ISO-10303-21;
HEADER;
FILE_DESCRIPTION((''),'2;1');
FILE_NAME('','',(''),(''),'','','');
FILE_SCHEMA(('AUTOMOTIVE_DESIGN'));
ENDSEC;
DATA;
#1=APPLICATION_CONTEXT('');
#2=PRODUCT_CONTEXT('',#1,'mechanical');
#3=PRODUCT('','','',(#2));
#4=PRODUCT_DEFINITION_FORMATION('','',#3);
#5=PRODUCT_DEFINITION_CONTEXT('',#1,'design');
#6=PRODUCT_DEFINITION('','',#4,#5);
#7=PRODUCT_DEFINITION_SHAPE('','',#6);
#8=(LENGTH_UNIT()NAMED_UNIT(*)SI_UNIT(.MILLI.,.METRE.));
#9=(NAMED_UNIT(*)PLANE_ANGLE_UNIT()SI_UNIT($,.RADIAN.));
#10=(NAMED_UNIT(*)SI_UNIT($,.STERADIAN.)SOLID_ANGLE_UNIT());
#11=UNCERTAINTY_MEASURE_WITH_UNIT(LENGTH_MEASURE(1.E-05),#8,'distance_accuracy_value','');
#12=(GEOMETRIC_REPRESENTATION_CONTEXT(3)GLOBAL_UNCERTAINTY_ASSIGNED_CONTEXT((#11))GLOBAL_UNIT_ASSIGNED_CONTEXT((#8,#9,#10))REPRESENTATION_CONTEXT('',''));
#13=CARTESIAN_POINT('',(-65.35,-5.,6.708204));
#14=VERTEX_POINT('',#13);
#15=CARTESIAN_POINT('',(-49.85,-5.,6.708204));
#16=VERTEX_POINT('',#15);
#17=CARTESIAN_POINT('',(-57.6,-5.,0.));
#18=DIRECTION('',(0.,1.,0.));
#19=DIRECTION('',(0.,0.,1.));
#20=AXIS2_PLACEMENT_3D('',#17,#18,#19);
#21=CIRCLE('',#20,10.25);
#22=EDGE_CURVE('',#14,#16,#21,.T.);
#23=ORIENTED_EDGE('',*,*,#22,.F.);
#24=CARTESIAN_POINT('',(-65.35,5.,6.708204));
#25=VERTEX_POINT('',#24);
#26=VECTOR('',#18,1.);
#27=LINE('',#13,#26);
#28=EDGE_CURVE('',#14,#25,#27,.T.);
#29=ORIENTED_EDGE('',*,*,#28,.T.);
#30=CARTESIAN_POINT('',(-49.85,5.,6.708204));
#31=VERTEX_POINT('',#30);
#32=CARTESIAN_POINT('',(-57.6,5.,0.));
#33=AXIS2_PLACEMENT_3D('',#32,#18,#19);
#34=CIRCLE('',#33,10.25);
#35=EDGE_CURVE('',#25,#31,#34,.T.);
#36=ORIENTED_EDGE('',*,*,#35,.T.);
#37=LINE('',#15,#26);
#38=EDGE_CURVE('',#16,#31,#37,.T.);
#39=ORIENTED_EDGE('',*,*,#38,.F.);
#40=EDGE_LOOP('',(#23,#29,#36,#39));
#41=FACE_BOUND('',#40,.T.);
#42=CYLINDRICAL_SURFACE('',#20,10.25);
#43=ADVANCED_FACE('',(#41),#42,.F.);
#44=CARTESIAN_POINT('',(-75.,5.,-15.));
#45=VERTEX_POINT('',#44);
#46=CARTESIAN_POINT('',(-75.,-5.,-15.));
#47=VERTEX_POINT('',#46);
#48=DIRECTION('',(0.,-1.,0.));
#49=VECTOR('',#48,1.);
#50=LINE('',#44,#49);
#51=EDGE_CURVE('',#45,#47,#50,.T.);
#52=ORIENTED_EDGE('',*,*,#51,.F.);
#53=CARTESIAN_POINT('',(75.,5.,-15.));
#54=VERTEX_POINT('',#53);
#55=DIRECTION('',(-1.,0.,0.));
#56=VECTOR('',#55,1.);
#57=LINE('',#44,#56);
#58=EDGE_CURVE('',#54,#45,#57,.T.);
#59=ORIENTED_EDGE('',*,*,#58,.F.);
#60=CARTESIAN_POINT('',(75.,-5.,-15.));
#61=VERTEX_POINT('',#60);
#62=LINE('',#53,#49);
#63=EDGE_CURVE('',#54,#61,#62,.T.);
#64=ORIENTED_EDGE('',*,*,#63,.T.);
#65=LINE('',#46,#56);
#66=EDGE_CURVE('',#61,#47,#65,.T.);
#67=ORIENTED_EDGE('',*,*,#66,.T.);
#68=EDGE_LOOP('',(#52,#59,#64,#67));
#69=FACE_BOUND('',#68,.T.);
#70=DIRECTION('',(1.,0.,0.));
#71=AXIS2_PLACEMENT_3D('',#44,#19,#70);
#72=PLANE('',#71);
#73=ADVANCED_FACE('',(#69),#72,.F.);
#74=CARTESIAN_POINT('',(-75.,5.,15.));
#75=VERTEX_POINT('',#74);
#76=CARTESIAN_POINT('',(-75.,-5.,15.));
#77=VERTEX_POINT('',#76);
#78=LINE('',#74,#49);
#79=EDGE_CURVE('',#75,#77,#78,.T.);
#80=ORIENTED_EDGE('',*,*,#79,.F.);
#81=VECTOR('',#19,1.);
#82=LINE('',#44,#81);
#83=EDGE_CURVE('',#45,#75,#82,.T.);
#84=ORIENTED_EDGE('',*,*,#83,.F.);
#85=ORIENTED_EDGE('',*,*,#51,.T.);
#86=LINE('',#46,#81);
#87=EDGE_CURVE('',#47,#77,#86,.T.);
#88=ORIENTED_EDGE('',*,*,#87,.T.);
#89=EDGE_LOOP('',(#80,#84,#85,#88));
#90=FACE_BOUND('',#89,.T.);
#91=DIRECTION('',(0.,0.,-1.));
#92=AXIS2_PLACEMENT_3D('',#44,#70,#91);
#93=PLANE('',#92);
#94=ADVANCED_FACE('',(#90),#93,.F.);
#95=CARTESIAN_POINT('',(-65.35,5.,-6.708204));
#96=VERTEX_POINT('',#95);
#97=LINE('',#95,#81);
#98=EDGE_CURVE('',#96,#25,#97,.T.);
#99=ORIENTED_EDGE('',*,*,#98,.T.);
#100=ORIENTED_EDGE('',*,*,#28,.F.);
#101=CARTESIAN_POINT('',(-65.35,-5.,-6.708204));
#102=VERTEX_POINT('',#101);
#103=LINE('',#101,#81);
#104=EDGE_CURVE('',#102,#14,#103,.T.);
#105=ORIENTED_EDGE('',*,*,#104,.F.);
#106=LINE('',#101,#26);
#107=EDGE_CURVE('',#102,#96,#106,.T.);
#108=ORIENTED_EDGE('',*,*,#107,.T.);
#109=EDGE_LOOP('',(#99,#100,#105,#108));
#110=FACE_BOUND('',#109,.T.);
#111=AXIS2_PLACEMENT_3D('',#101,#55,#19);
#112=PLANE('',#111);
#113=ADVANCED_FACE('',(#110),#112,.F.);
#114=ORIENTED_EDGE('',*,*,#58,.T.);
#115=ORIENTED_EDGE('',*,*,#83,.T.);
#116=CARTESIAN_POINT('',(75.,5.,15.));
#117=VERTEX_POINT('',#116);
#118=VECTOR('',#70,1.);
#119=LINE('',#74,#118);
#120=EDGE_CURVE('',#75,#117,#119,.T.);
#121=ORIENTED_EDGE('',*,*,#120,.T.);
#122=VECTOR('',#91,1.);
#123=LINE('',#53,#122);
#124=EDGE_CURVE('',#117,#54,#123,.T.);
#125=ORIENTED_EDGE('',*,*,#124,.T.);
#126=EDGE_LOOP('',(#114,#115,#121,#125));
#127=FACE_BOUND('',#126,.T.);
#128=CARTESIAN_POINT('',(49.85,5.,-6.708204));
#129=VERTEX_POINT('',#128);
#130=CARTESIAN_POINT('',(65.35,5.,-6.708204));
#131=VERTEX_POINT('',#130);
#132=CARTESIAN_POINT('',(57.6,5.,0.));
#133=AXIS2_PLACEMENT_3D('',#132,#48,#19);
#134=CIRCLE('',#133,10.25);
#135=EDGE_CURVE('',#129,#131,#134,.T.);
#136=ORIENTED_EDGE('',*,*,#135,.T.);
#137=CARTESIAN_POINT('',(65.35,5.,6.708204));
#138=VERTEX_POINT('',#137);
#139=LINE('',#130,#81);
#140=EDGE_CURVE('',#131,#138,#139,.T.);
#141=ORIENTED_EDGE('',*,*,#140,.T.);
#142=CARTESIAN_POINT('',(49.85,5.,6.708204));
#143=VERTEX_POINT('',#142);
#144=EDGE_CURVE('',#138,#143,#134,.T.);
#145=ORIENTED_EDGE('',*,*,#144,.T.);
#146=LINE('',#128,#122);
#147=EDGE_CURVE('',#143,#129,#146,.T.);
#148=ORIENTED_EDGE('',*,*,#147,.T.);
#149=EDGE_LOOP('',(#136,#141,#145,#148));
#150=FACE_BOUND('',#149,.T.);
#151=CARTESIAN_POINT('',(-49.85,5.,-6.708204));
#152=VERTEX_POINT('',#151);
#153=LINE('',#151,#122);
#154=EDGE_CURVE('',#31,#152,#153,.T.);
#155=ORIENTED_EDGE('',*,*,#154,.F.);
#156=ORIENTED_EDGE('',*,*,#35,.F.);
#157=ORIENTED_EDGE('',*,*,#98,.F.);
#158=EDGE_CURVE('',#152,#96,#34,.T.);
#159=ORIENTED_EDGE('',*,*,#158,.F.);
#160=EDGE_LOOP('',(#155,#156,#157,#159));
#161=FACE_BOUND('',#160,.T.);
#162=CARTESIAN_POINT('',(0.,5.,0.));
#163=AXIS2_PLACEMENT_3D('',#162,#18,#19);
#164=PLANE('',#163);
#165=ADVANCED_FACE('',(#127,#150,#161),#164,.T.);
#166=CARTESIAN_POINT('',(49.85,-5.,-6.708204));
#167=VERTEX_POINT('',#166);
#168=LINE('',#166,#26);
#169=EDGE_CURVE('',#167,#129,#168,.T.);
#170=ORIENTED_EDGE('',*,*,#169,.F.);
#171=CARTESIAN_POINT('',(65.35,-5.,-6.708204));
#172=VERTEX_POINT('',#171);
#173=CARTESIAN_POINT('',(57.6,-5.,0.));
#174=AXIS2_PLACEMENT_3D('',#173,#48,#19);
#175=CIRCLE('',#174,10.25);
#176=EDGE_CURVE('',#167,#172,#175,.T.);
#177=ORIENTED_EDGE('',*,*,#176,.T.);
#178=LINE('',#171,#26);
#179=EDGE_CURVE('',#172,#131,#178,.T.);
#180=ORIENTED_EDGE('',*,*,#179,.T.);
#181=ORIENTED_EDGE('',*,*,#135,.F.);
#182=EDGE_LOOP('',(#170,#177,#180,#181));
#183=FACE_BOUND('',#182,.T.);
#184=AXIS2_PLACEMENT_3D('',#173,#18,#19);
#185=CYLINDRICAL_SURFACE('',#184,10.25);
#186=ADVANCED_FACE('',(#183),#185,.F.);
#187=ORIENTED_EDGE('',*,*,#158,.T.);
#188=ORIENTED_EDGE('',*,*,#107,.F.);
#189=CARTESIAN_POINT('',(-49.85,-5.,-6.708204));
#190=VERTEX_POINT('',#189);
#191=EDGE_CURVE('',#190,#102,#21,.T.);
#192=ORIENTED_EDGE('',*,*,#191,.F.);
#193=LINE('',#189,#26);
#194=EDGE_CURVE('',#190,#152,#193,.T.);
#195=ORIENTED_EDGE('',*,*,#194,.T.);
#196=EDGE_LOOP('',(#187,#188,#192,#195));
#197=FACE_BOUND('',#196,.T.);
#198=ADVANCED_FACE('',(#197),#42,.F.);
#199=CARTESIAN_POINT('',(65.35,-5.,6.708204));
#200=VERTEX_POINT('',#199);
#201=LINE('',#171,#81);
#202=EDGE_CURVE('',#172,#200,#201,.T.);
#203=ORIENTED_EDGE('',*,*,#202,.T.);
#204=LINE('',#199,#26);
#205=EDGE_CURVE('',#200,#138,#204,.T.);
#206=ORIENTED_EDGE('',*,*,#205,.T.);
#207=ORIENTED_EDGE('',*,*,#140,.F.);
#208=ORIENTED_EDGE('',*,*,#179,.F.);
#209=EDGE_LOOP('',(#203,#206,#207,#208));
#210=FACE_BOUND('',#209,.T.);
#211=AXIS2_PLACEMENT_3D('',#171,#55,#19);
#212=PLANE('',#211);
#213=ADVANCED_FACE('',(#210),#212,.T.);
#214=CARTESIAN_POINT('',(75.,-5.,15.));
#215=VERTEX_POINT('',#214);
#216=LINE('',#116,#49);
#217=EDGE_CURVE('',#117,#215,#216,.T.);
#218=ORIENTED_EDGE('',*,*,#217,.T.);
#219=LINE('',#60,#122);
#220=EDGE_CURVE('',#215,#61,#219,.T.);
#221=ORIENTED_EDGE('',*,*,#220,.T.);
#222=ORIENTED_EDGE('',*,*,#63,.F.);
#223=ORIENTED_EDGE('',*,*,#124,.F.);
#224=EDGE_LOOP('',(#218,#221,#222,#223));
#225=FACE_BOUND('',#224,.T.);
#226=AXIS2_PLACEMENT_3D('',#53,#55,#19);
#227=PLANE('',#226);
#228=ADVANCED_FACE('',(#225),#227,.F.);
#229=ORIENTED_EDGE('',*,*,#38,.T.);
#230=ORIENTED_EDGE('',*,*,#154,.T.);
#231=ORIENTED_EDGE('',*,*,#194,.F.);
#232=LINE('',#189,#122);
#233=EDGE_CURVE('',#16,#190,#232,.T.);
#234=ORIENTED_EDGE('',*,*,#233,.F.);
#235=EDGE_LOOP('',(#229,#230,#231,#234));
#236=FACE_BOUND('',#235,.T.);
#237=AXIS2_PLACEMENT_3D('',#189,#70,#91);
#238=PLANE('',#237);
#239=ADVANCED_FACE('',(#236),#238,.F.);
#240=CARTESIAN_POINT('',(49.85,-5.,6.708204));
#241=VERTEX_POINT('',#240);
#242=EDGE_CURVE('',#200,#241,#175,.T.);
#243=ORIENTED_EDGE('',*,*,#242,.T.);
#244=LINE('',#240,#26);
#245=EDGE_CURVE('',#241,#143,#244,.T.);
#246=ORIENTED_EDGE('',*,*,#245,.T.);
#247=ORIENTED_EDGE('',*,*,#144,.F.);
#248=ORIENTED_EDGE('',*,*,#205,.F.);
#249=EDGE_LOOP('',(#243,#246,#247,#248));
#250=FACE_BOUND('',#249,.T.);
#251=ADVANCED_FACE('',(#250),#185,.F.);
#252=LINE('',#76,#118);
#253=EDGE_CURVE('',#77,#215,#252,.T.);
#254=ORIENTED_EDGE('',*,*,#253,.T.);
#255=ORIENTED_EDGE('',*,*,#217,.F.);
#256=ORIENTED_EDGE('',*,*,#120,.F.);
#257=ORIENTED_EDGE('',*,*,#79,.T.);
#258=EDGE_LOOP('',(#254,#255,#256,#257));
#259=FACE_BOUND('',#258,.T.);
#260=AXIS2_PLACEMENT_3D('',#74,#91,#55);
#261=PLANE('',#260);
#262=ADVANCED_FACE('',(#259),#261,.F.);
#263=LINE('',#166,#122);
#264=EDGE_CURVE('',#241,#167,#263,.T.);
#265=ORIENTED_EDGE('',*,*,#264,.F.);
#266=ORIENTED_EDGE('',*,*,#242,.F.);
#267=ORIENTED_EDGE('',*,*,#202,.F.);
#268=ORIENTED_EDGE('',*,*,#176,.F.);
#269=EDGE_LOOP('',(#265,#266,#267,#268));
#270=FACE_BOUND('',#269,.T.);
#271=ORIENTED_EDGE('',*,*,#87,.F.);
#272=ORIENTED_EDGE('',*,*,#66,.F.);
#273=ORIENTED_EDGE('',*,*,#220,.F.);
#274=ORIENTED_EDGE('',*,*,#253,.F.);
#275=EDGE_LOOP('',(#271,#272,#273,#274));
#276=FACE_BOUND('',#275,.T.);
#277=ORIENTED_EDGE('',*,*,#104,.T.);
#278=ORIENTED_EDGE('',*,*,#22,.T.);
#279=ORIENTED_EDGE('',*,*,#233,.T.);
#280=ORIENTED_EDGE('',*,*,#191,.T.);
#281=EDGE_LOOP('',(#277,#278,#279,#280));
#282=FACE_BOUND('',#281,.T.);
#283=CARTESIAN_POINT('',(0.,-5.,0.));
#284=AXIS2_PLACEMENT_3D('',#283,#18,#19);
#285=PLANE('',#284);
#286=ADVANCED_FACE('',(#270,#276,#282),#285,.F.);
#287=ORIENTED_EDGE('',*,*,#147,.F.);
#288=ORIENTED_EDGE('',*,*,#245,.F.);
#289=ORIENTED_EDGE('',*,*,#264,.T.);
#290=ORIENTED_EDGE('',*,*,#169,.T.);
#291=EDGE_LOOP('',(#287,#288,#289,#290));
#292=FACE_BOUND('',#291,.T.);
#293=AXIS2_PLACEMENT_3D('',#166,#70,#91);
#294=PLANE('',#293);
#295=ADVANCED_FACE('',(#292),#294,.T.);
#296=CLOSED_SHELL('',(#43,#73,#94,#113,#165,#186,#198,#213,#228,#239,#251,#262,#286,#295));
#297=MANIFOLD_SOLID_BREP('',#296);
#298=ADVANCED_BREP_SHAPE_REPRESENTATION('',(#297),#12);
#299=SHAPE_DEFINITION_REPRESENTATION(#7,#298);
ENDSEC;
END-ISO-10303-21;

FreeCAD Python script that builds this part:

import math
import FreeCAD as App
import Part
import Sketcher

V = App.Vector


def add_polygon(sketch, points):
    """Adds a closed chain of lines whose ends are joined by coincident constraints."""
    first, n = sketch.GeometryCount, len(points)
    for a, b in zip(points, points[1:] + points[:1]):
        sketch.addGeometry(Part.LineSegment(App.Vector(*a, 0), App.Vector(*b, 0)), False)
    for i in range(n):
        sketch.addConstraint(Sketcher.Constraint("Coincident", first + i, 2, first + (i + 1) % n, 1))

doc = App.newDocument("Part")
body = doc.addObject("PartDesign::Body", "Body")

sketch1 = body.newObject("Sketcher::SketchObject", "Sketch")
sketch1.AttachmentSupport = (doc.getObject("XZ_Plane"), [""])
sketch1.MapMode = "FlatFace"
add_polygon(sketch1, [(-75, -15), (-75, 15), (75, 15), (75, -15)])
sketch1.addConstraint(Sketcher.Constraint("Vertical", 0))
sketch1.addConstraint(Sketcher.Constraint("Horizontal", 1))
sketch1.addConstraint(Sketcher.Constraint("Vertical", 2))
sketch1.addConstraint(Sketcher.Constraint("Horizontal", 3))
sketch1.addConstraint(Sketcher.Constraint("Symmetric", 0, 2, 2, 2, -1, 1))
sketch1.addConstraint(Sketcher.Constraint("DistanceX", 1, 1, 1, 2, 150.0))
sketch1.addConstraint(Sketcher.Constraint("DistanceY", 0, 1, 0, 2, 30.0))
pad1 = body.newObject("PartDesign::Pad", "Pad")
pad1.Profile = sketch1
pad1.Length = 10
pad1.Midplane = True

sketch2 = body.newObject("Sketcher::SketchObject", "Sketch001")
sketch2.AttachmentSupport = (doc.getObject("XZ_Plane"), [""])
sketch2.MapMode = "FlatFace"
sketch2.AttachmentOffset = App.Placement(V(0, 0, -5), App.Rotation())
sketch2.addGeometry(Part.LineSegment(V(-65, -7, 0), V(-65, 7, 0)), False)
sketch2.addGeometry(Part.ArcOfCircle(Part.Circle(V(-58, 0, 0), V(0, 0, 1), 10), math.radians(41), math.radians(139)), False)
sketch2.addGeometry(Part.LineSegment(V(-50, 7, 0), V(-50, -7, 0)), False)
sketch2.addGeometry(Part.ArcOfCircle(Part.Circle(V(-58, 0, 0), V(0, 0, 1), 10), math.radians(-139), math.radians(-41)), False)
sketch2.addConstraint(Sketcher.Constraint("Coincident", 0, 2, 1, 2))
sketch2.addConstraint(Sketcher.Constraint("Coincident", 1, 1, 2, 1))
sketch2.addConstraint(Sketcher.Constraint("Coincident", 2, 2, 3, 2))
sketch2.addConstraint(Sketcher.Constraint("Coincident", 3, 1, 0, 1))
sketch2.addConstraint(Sketcher.Constraint("Vertical", 0))
sketch2.addConstraint(Sketcher.Constraint("Vertical", 2))
sketch2.addConstraint(Sketcher.Constraint("Coincident", 3, 3, 1, 3))
sketch2.addConstraint(Sketcher.Constraint("Equal", 1, 3))
sketch2.addConstraint(Sketcher.Constraint("PointOnObject", 1, 3, -1))
sketch2.addConstraint(Sketcher.Constraint("Horizontal", 0, 2, 1, 1))
sketch2.addConstraint(Sketcher.Constraint("Radius", 1, 10.25))
sketch2.addConstraint(Sketcher.Constraint("DistanceX", 1, 3, -1, 1, 57.6))
sketch2.addConstraint(Sketcher.Constraint("DistanceX", 0, 2, 1, 1, 15.5))
pocket1 = body.newObject("PartDesign::Pocket", "Pocket")
pocket1.Profile = sketch2
pocket1.Type = "ThroughAll"
pocket1.Reversed = True
doc.recompute()

mirrored = body.newObject("PartDesign::Mirrored", "Mirrored")
mirrored.Originals = [pocket1]
mirrored.MirrorPlane = (doc.getObject("YZ_Plane"), [""])
body.Tip = mirrored

doc.recompute()
